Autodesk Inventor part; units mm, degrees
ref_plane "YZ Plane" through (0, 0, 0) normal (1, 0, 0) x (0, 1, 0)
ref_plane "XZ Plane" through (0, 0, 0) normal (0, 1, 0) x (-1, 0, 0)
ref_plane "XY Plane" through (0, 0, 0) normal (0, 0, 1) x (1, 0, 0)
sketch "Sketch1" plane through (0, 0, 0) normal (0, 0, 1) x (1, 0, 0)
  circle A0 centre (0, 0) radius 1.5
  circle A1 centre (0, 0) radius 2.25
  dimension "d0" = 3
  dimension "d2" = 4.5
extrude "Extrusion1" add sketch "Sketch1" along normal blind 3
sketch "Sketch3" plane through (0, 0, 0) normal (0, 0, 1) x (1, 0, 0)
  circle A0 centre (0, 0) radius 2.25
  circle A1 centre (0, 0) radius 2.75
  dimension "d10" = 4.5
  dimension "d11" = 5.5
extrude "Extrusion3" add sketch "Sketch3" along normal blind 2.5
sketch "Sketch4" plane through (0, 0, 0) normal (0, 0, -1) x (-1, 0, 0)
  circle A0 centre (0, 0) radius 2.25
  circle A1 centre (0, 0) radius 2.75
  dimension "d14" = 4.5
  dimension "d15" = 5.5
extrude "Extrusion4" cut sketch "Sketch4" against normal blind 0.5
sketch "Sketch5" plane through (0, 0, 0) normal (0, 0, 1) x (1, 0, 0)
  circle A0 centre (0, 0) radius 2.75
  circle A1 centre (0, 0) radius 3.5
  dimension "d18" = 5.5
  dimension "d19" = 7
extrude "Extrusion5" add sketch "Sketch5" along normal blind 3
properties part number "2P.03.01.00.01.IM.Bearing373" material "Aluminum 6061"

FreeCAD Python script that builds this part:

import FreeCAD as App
import Part
import Sketcher

V = App.Vector

doc = App.newDocument("Part")
body = doc.addObject("PartDesign::Body", "Body")

sketch1 = body.newObject("Sketcher::SketchObject", "Sketch")
sketch1.AttachmentSupport = (doc.getObject("XY_Plane"), [""])
sketch1.MapMode = "FlatFace"
sketch1.addGeometry([
    Part.Circle(V(0, 0, 0), V(0, 0, 1), 2.2),
    Part.Circle(V(0, 0, 0), V(0, 0, 1), 1.5),
], False)
sketch1.addConstraint([
    Sketcher.Constraint("Coincident", 0, 3, -1, 1),
    Sketcher.Constraint("Coincident", 1, 3, -1, 1),
    Sketcher.Constraint("Diameter", 1, 3.0),
    Sketcher.Constraint("Diameter", 0, 4.5),
])
pad1 = body.newObject("PartDesign::Pad", "Pad")
pad1.Profile = sketch1
pad1.Length = 3

sketch2 = body.newObject("Sketcher::SketchObject", "Sketch001")
sketch2.AttachmentSupport = (doc.getObject("XY_Plane"), [""])
sketch2.MapMode = "FlatFace"
sketch2.addGeometry([
    Part.Circle(V(0, 0, 0), V(0, 0, 1), 2.8),
    Part.Circle(V(0, 0, 0), V(0, 0, 1), 2.2),
], False)
sketch2.addConstraint([
    Sketcher.Constraint("Coincident", 0, 3, -1, 1),
    Sketcher.Constraint("Coincident", 1, 3, -1, 1),
    Sketcher.Constraint("Diameter", 0, 5.5),
    Sketcher.Constraint("Diameter", 1, 4.5),
])
pad2 = body.newObject("PartDesign::Pad", "Pad001")
pad2.Profile = sketch2
pad2.Length = 2.5

sketch3 = body.newObject("Sketcher::SketchObject", "Sketch002")
sketch3.AttachmentSupport = (doc.getObject("XY_Plane"), [""])
sketch3.MapMode = "FlatFace"
sketch3.addGeometry([
    Part.Circle(V(0, 0, 0), V(0, 0, 1), 2.8),
    Part.Circle(V(0, 0, 0), V(0, 0, 1), 2.2),
], False)
sketch3.addConstraint([
    Sketcher.Constraint("Coincident", 0, 3, -1, 1),
    Sketcher.Constraint("Coincident", 1, 3, -1, 1),
    Sketcher.Constraint("Diameter", 0, 5.5),
    Sketcher.Constraint("Diameter", 1, 4.5),
])
pocket1 = body.newObject("PartDesign::Pocket", "Pocket")
pocket1.Profile = sketch3
pocket1.Length = 0.5
pocket1.Reversed = True

sketch4 = body.newObject("Sketcher::SketchObject", "Sketch003")
sketch4.AttachmentSupport = (doc.getObject("XY_Plane"), [""])
sketch4.MapMode = "FlatFace"
sketch4.addGeometry([
    Part.Circle(V(0, 0, 0), V(0, 0, 1), 3.5),
    Part.Circle(V(0, 0, 0), V(0, 0, 1), 2.8),
], False)
sketch4.addConstraint([
    Sketcher.Constraint("Coincident", 0, 3, -1, 1),
    Sketcher.Constraint("Coincident", 1, 3, -1, 1),
    Sketcher.Constraint("Diameter", 0, 7.0),
    Sketcher.Constraint("Diameter", 1, 5.5),
])
pad3 = body.newObject("PartDesign::Pad", "Pad002")
pad3.Profile = sketch4
pad3.Length = 3

doc.recompute()
